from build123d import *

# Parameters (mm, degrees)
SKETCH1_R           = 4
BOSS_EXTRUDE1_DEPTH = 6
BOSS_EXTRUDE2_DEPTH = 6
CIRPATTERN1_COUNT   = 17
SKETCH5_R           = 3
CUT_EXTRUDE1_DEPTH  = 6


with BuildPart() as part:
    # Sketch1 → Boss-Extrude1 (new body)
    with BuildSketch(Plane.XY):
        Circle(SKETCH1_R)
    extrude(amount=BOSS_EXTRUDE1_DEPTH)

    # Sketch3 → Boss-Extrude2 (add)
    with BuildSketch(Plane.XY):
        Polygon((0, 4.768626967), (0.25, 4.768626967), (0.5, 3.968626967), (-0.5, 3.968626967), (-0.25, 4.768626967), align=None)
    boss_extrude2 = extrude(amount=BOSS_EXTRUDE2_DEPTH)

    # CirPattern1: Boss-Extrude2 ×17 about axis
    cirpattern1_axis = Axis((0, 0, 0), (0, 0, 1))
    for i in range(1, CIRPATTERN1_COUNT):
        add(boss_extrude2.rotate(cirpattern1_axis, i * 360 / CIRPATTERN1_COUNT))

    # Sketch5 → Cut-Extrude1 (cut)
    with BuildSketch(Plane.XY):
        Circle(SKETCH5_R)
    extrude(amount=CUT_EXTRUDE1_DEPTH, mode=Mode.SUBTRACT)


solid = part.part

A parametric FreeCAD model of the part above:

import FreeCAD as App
import Part
import Sketcher

V = App.Vector
Q = App.Units.Quantity


def add_polygon(sketch, points):
    """Adds a closed chain of lines whose ends are joined by coincident constraints."""
    first, n = sketch.GeometryCount, len(points)
    for a, b in zip(points, points[1:] + points[:1]):
        sketch.addGeometry(Part.LineSegment(App.Vector(*a, 0), App.Vector(*b, 0)), False)
    for i in range(n):
        sketch.addConstraint(Sketcher.Constraint("Coincident", first + i, 2, first + (i + 1) % n, 1))

doc = App.newDocument("Part")
body = doc.addObject("PartDesign::Body", "Body")

sketch1 = body.newObject("Sketcher::SketchObject", "Sketch")
sketch1.AttachmentSupport = (doc.getObject("XY_Plane"), [""])
sketch1.MapMode = "FlatFace"
sketch1.addGeometry(Part.Circle(V(0, 0, 0), V(0, 0, 1), 4), False)
sketch1.addConstraint(Sketcher.Constraint("Coincident", 0, 3, -1, 1))
sketch1.addConstraint(Sketcher.Constraint("Diameter", 0, Q("8 mm")))
pad1 = body.newObject("PartDesign::Pad", "Pad")
pad1.Profile = sketch1
pad1.Length = 6

sketch2 = body.newObject("Sketcher::SketchObject", "Sketch001")
sketch2.AttachmentSupport = (doc.getObject("XY_Plane"), [""])
sketch2.MapMode = "FlatFace"
add_polygon(sketch2, [(0.2, 4.8), (-0.2, 4.8), (-0.5, 4), (0.5, 4)])
sketch2.addConstraint(Sketcher.Constraint("Horizontal", 0))
sketch2.addConstraint(Sketcher.Constraint("Horizontal", 2))
sketch2.addConstraint(Sketcher.Constraint("Equal", 1, 3))
sketch2.addConstraint(Sketcher.Constraint("DistanceX", 2, 1, 2, 2, Q("1 mm")))
sketch2.addConstraint(Sketcher.Constraint("DistanceX", 0, 2, 0, 1, Q("0.5 mm")))
sketch2.addConstraint(Sketcher.Constraint("DistanceX", 1, 2, -1, 1, Q("0.5 mm")))
sketch2.addConstraint(Sketcher.Constraint("DistanceY", 1, 2, 0, 2, Q("0.8 mm")))
sketch2.addConstraint(Sketcher.Constraint("DistanceY", -1, 1, 0, 2, Q("4.768627 mm")))
pad2 = body.newObject("PartDesign::Pad", "Pad001")
pad2.Profile = sketch2
pad2.Length = 6
doc.recompute()

polarpattern = body.newObject("PartDesign::PolarPattern", "PolarPattern")
polarpattern.Originals = [pad2]
polarpattern.Axis = (doc.getObject("Z_Axis"), [""])
polarpattern.Angle = 360
polarpattern.Occurrences = 17
body.Tip = polarpattern

sketch3 = body.newObject("Sketcher::SketchObject", "Sketch002")
sketch3.AttachmentSupport = (doc.getObject("XY_Plane"), [""])
sketch3.MapMode = "FlatFace"
sketch3.addGeometry(Part.Circle(V(0, 0, 0), V(0, 0, 1), 3), False)
sketch3.addConstraint(Sketcher.Constraint("Coincident", 0, 3, -1, 1))
sketch3.addConstraint(Sketcher.Constraint("Diameter", 0, Q("6 mm")))
pocket1 = body.newObject("PartDesign::Pocket", "Pocket")
pocket1.Profile = sketch3
pocket1.Length = 6
pocket1.Reversed = True

doc.recompute()
